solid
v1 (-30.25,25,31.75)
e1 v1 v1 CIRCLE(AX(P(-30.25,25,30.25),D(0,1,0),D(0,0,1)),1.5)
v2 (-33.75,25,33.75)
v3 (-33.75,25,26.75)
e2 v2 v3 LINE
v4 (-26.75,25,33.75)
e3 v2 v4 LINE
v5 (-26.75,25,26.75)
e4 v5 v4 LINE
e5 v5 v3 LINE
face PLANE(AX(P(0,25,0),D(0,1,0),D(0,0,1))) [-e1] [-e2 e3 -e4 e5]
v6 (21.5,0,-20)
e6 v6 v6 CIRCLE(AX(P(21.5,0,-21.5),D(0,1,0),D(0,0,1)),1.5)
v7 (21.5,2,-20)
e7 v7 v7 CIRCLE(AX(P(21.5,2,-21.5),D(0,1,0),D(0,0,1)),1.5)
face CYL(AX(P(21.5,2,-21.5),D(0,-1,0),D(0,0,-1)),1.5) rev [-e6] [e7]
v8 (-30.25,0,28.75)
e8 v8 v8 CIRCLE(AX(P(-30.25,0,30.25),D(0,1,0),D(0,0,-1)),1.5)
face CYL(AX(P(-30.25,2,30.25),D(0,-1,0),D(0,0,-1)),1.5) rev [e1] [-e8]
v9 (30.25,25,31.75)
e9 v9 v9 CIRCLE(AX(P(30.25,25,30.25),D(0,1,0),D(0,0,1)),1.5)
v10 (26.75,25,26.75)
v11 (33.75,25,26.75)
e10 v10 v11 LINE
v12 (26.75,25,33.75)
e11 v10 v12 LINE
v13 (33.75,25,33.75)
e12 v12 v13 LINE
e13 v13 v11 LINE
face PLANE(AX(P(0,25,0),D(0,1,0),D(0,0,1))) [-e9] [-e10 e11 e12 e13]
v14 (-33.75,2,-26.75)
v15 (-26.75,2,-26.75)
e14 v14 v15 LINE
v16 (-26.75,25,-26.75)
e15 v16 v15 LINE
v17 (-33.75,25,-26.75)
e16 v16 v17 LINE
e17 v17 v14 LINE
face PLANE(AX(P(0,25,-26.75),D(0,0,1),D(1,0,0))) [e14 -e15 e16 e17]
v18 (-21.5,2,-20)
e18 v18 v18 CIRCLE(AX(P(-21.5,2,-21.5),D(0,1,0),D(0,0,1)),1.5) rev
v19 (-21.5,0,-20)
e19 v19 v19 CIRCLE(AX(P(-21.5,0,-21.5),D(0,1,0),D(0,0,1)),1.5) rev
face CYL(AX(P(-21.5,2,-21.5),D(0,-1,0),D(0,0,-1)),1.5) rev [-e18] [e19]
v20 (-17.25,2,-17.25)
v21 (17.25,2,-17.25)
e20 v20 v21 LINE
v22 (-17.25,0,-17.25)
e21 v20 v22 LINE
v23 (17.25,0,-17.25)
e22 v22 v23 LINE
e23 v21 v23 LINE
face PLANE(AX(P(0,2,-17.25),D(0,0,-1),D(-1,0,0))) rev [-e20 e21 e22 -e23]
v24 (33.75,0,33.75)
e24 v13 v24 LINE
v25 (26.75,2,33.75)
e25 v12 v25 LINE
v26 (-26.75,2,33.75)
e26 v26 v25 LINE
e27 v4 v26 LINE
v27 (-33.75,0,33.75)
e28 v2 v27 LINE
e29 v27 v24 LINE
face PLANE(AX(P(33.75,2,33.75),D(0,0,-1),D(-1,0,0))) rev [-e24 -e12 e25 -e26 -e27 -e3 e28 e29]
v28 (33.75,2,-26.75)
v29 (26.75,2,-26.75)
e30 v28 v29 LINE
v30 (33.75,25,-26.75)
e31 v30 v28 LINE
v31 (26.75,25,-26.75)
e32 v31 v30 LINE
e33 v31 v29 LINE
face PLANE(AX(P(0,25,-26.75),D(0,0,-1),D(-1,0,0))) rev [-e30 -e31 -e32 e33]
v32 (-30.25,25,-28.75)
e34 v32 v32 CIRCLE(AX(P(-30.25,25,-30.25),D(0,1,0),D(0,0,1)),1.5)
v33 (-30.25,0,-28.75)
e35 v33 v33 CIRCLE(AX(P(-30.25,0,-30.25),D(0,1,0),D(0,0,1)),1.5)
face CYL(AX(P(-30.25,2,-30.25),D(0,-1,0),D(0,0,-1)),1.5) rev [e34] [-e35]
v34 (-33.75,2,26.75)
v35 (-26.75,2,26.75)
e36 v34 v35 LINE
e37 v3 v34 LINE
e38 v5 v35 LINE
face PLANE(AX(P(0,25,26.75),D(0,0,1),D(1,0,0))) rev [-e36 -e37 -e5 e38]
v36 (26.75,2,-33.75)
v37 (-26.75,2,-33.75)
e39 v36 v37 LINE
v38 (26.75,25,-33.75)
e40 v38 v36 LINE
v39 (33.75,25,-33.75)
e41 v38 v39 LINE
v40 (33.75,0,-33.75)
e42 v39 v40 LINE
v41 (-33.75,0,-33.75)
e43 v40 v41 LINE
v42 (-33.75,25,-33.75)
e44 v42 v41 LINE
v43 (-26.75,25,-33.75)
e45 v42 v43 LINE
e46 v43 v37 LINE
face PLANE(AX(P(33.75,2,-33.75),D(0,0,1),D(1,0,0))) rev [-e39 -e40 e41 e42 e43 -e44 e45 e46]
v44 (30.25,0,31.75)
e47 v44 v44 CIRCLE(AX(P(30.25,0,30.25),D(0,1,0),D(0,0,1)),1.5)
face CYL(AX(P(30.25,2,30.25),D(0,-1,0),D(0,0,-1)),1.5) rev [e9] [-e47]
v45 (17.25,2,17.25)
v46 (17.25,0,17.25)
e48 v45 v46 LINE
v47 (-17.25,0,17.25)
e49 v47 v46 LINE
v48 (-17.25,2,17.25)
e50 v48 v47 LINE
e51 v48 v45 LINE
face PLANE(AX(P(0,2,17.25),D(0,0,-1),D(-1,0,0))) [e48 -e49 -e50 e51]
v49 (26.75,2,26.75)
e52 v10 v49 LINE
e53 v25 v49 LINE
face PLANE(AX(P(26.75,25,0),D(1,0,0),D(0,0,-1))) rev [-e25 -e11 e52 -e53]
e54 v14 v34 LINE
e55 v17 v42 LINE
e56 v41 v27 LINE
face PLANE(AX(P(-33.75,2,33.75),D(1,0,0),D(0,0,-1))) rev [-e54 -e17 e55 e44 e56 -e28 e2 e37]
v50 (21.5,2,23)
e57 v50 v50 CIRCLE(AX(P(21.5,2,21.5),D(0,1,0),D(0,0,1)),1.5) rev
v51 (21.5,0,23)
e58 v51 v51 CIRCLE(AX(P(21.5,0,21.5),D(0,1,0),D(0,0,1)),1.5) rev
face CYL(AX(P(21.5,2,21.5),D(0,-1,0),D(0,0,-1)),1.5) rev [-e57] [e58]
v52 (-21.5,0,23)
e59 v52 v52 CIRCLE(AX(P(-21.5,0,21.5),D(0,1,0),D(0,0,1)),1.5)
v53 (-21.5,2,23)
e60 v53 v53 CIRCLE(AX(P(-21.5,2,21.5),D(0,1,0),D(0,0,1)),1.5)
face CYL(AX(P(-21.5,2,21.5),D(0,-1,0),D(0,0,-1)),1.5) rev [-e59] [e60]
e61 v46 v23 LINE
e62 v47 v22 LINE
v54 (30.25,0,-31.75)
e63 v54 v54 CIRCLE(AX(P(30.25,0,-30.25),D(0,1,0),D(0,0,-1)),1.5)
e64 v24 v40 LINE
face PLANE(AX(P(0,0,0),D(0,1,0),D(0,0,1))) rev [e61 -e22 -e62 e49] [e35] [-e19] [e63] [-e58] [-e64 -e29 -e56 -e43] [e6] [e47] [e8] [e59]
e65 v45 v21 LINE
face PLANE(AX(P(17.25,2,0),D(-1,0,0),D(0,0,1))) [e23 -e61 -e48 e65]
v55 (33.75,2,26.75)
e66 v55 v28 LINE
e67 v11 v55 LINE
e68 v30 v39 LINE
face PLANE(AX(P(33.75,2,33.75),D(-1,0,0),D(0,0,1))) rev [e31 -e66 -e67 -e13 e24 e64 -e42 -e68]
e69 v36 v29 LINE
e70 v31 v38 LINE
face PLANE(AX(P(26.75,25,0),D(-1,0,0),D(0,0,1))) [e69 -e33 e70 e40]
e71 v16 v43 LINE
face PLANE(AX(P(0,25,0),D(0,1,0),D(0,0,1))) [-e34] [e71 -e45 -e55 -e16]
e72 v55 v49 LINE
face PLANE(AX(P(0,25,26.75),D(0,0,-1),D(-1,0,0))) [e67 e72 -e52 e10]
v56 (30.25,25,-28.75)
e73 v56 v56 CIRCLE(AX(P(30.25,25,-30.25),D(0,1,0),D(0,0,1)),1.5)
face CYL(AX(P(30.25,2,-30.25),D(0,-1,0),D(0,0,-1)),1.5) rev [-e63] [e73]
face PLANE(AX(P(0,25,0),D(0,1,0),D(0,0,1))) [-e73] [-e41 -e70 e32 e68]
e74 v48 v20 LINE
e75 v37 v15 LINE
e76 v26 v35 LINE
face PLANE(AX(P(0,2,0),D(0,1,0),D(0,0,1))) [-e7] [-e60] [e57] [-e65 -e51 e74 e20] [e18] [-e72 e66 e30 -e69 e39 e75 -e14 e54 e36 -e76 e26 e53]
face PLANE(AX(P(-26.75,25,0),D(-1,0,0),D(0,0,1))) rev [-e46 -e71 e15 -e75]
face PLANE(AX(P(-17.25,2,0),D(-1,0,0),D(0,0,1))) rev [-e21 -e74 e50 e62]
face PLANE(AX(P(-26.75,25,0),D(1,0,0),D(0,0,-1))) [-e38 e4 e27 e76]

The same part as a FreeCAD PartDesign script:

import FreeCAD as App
import Part
import Sketcher

doc = App.newDocument("Part")
params = doc.addObject("Spreadsheet::Sheet", "Params")
for row, (alias, value) in enumerate([
    ("sketch1_diameter", "3 mm"),
    ("sketch1_width", "55.5 mm"),
    ("sketch1_width2", "34.5 mm"),
    ("pad1_length", "2 mm"),
    ("sketch2_diameter", "3 mm"),
    ("sketch2_width", "67.5 mm"),
    ("sketch2_width2", "55.5 mm"),
    ("pad2_length", "2 mm"),
    ("sketch3_diameter", "3 mm"),
    ("sketch3_width", "7 mm"),
    ("pad3_length", "25 mm"),
], start=1):
    params.set(f"A{row}", alias)
    params.set(f"B{row}", "=" + value)
    params.setAlias(f"B{row}", alias)

body = doc.addObject("PartDesign::Body", "Body")

sketch1 = body.newObject("Sketcher::SketchObject", "Sketch")
sketch1.AttachmentSupport = (doc.getObject("XZ_Plane"), [""])
sketch1.MapMode = "FlatFace"
sketch1.addGeometry(Part.LineSegment(App.Vector(-27.8, -27.8, 0), App.Vector(-27.8, 27.8, 0)), False)
sketch1.addGeometry(Part.LineSegment(App.Vector(-27.8, 27.8, 0), App.Vector(27.8, 27.8, 0)), False)
sketch1.addGeometry(Part.LineSegment(App.Vector(27.8, 27.8, 0), App.Vector(27.8, -27.8, 0)), False)
sketch1.addGeometry(Part.LineSegment(App.Vector(27.8, -27.8, 0), App.Vector(-27.8, -27.8, 0)), False)
sketch1.addGeometry(Part.Circle(App.Vector(-21.5, 21.5, 0), App.Vector(0, 0, 1), 1.5), False)
sketch1.addGeometry(Part.Circle(App.Vector(21.5, 21.5, 0), App.Vector(0, 0, 1), 1.5), False)
sketch1.addGeometry(Part.Circle(App.Vector(-21.5, -21.5, 0), App.Vector(0, 0, 1), 1.5), False)
sketch1.addGeometry(Part.LineSegment(App.Vector(17.2, 17.2, 0), App.Vector(-17.2, 17.2, 0)), False)
sketch1.addGeometry(Part.LineSegment(App.Vector(-17.2, 17.2, 0), App.Vector(-17.2, -17.2, 0)), False)
sketch1.addGeometry(Part.LineSegment(App.Vector(-17.2, -17.2, 0), App.Vector(17.2, -17.2, 0)), False)
sketch1.addGeometry(Part.LineSegment(App.Vector(17.2, -17.2, 0), App.Vector(17.2, 17.2, 0)), False)
sketch1.addGeometry(Part.Circle(App.Vector(21.5, -21.5, 0), App.Vector(0, 0, 1), 1.5), False)
sketch1.addConstraint(Sketcher.Constraint("Coincident", 0, 2, 1, 1))
sketch1.addConstraint(Sketcher.Constraint("Coincident", 1, 2, 2, 1))
sketch1.addConstraint(Sketcher.Constraint("Coincident", 2, 2, 3, 1))
sketch1.addConstraint(Sketcher.Constraint("Coincident", 3, 2, 0, 1))
sketch1.addConstraint(Sketcher.Constraint("Coincident", 7, 2, 8, 1))
sketch1.addConstraint(Sketcher.Constraint("Coincident", 8, 2, 9, 1))
sketch1.addConstraint(Sketcher.Constraint("Coincident", 9, 2, 10, 1))
sketch1.addConstraint(Sketcher.Constraint("Coincident", 10, 2, 7, 1))
sketch1.addConstraint(Sketcher.Constraint("Vertical", 0))
sketch1.addConstraint(Sketcher.Constraint("Horizontal", 1))
sketch1.addConstraint(Sketcher.Constraint("Vertical", 2))
sketch1.addConstraint(Sketcher.Constraint("Horizontal", 3))
sketch1.addConstraint(Sketcher.Constraint("Horizontal", 7))
sketch1.addConstraint(Sketcher.Constraint("Vertical", 8))
sketch1.addConstraint(Sketcher.Constraint("Horizontal", 9))
sketch1.addConstraint(Sketcher.Constraint("Vertical", 10))
sketch1.addConstraint(Sketcher.Constraint("Equal", 4, 5))
sketch1.addConstraint(Sketcher.Constraint("Equal", 5, 6))
sketch1.addConstraint(Sketcher.Constraint("Equal", 6, 11))
sketch1.addConstraint(Sketcher.Constraint("Symmetric", 5, 3, 6, 3, -1, 1))
sketch1.addConstraint(Sketcher.Constraint("Symmetric", 4, 3, 11, 3, -1, 1))
sketch1.addConstraint(Sketcher.Constraint("Symmetric", 0, 2, 2, 2, -1, 1))
sketch1.addConstraint(Sketcher.Constraint("Symmetric", 7, 2, 9, 2, -1, 1))
sketch1.addConstraint(Sketcher.Constraint("Symmetric", 4, 3, 5, 3, -2))
sketch1.addConstraint(Sketcher.Constraint("Equal", 3, 0))
sketch1.addConstraint(Sketcher.Constraint("Equal", 9, 8))
sketch1.addConstraint(Sketcher.Constraint("Diameter", 4, 3.0))
sketch1.addConstraint(Sketcher.Constraint("DistanceX", 1, 1, 1, 2, 55.5))
sketch1.addConstraint(Sketcher.Constraint("DistanceX", 7, 2, 7, 1, 34.5))
sketch1.addConstraint(Sketcher.Constraint("DistanceX", 4, 3, 5, 3, 43.0))
sketch1.addConstraint(Sketcher.Constraint("DistanceY", 6, 3, 4, 3, 43.0))
sketch1.setExpression("Constraints[26]", "Params.sketch1_diameter")
sketch1.setExpression("Constraints[27]", "Params.sketch1_width")
sketch1.setExpression("Constraints[28]", "Params.sketch1_width2")
pad1 = body.newObject("PartDesign::Pad", "Pad")
pad1.Profile = sketch1
pad1.setExpression("Length", "Params.pad1_length")
pad1.Reversed = True

sketch2 = body.newObject("Sketcher::SketchObject", "Sketch001")
sketch2.AttachmentSupport = (doc.getObject("XZ_Plane"), [""])
sketch2.MapMode = "FlatFace"
sketch2.addGeometry(Part.LineSegment(App.Vector(-33.8, -33.8, 0), App.Vector(-33.8, 33.8, 0)), False)
sketch2.addGeometry(Part.LineSegment(App.Vector(-33.8, 33.8, 0), App.Vector(33.8, 33.8, 0)), False)
sketch2.addGeometry(Part.LineSegment(App.Vector(33.8, 33.8, 0), App.Vector(33.8, -33.8, 0)), False)
sketch2.addGeometry(Part.LineSegment(App.Vector(33.8, -33.8, 0), App.Vector(-33.8, -33.8, 0)), False)
sketch2.addGeometry(Part.Circle(App.Vector(-30.2, 30.2, 0), App.Vector(0, 0, 1), 1.5), False)
sketch2.addGeometry(Part.Circle(App.Vector(30.2, 30.2, 0), App.Vector(0, 0, 1), 1.5), False)
sketch2.addGeometry(Part.Circle(App.Vector(-30.2, -30.2, 0), App.Vector(0, 0, 1), 1.5), False)
sketch2.addGeometry(Part.LineSegment(App.Vector(27.8, 27.8, 0), App.Vector(-27.8, 27.8, 0)), False)
sketch2.addGeometry(Part.LineSegment(App.Vector(-27.8, 27.8, 0), App.Vector(-27.8, -27.8, 0)), False)
sketch2.addGeometry(Part.LineSegment(App.Vector(-27.8, -27.8, 0), App.Vector(27.8, -27.8, 0)), False)
sketch2.addGeometry(Part.LineSegment(App.Vector(27.8, -27.8, 0), App.Vector(27.8, 27.8, 0)), False)
sketch2.addGeometry(Part.Circle(App.Vector(30.2, -30.2, 0), App.Vector(0, 0, 1), 1.5), False)
sketch2.addConstraint(Sketcher.Constraint("Coincident", 0, 2, 1, 1))
sketch2.addConstraint(Sketcher.Constraint("Coincident", 1, 2, 2, 1))
sketch2.addConstraint(Sketcher.Constraint("Coincident", 2, 2, 3, 1))
sketch2.addConstraint(Sketcher.Constraint("Coincident", 3, 2, 0, 1))
sketch2.addConstraint(Sketcher.Constraint("Coincident", 7, 2, 8, 1))
sketch2.addConstraint(Sketcher.Constraint("Coincident", 8, 2, 9, 1))
sketch2.addConstraint(Sketcher.Constraint("Coincident", 9, 2, 10, 1))
sketch2.addConstraint(Sketcher.Constraint("Coincident", 10, 2, 7, 1))
sketch2.addConstraint(Sketcher.Constraint("Vertical", 0))
sketch2.addConstraint(Sketcher.Constraint("Horizontal", 1))
sketch2.addConstraint(Sketcher.Constraint("Vertical", 2))
sketch2.addConstraint(Sketcher.Constraint("Horizontal", 3))
sketch2.addConstraint(Sketcher.Constraint("Horizontal", 7))
sketch2.addConstraint(Sketcher.Constraint("Vertical", 8))
sketch2.addConstraint(Sketcher.Constraint("Horizontal", 9))
sketch2.addConstraint(Sketcher.Constraint("Vertical", 10))
sketch2.addConstraint(Sketcher.Constraint("Equal", 4, 5))
sketch2.addConstraint(Sketcher.Constraint("Equal", 5, 6))
sketch2.addConstraint(Sketcher.Constraint("Equal", 6, 11))
sketch2.addConstraint(Sketcher.Constraint("Symmetric", 5, 3, 6, 3, -1, 1))
sketch2.addConstraint(Sketcher.Constraint("Symmetric", 4, 3, 11, 3, -1, 1))
sketch2.addConstraint(Sketcher.Constraint("Symmetric", 0, 2, 2, 2, -1, 1))
sketch2.addConstraint(Sketcher.Constraint("Symmetric", 7, 2, 9, 2, -1, 1))
sketch2.addConstraint(Sketcher.Constraint("Symmetric", 4, 3, 5, 3, -2))
sketch2.addConstraint(Sketcher.Constraint("Equal", 3, 0))
sketch2.addConstraint(Sketcher.Constraint("Equal", 9, 8))
sketch2.addConstraint(Sketcher.Constraint("Diameter", 4, 3.0))
sketch2.addConstraint(Sketcher.Constraint("DistanceX", 1, 1, 1, 2, 67.5))
sketch2.addConstraint(Sketcher.Constraint("DistanceX", 7, 2, 7, 1, 55.5))
sketch2.addConstraint(Sketcher.Constraint("DistanceX", 0, 2, 5, 3, 64.0))
sketch2.addConstraint(Sketcher.Constraint("DistanceY", 6, 3, 0, 2, 64.0))
sketch2.setExpression("Constraints[26]", "Params.sketch2_diameter")
sketch2.setExpression("Constraints[27]", "Params.sketch2_width")
sketch2.setExpression("Constraints[28]", "Params.sketch2_width2")
pad2 = body.newObject("PartDesign::Pad", "Pad001")
pad2.Profile = sketch2
pad2.setExpression("Length", "Params.pad2_length")
pad2.Reversed = True

sketch3 = body.newObject("Sketcher::SketchObject", "Sketch002")
sketch3.AttachmentSupport = (doc.getObject("XZ_Plane"), [""])
sketch3.MapMode = "FlatFace"
sketch3.addGeometry(Part.LineSegment(App.Vector(-33.8, 26.8, 0), App.Vector(-33.8, 33.8, 0)), False)
sketch3.addGeometry(Part.LineSegment(App.Vector(-33.8, 33.8, 0), App.Vector(-26.8, 33.8, 0)), False)
sketch3.addGeometry(Part.LineSegment(App.Vector(-26.8, 33.8, 0), App.Vector(-26.8, 26.8, 0)), False)
sketch3.addGeometry(Part.LineSegment(App.Vector(-26.8, 26.8, 0), App.Vector(-33.8, 26.8, 0)), False)
sketch3.addGeometry(Part.Circle(App.Vector(-30.2, 30.2, 0), App.Vector(0, 0, 1), 1.5), False)
sketch3.addGeometry(Part.LineSegment(App.Vector(26.8, 26.8, 0), App.Vector(26.8, 33.8, 0)), False)
sketch3.addGeometry(Part.LineSegment(App.Vector(26.8, 33.8, 0), App.Vector(33.8, 33.8, 0)), False)
sketch3.addGeometry(Part.LineSegment(App.Vector(33.8, 33.8, 0), App.Vector(33.8, 26.8, 0)), False)
sketch3.addGeometry(Part.LineSegment(App.Vector(33.8, 26.8, 0), App.Vector(26.8, 26.8, 0)), False)
sketch3.addGeometry(Part.Circle(App.Vector(30.2, 30.2, 0), App.Vector(0, 0, 1), 1.5), False)
sketch3.addGeometry(Part.LineSegment(App.Vector(-33.8, -33.8, 0), App.Vector(-33.8, -26.8, 0)), False)
sketch3.addGeometry(Part.LineSegment(App.Vector(-33.8, -26.8, 0), App.Vector(-26.8, -26.8, 0)), False)
sketch3.addGeometry(Part.LineSegment(App.Vector(-26.8, -26.8, 0), App.Vector(-26.8, -33.8, 0)), False)
sketch3.addGeometry(Part.LineSegment(App.Vector(-26.8, -33.8, 0), App.Vector(-33.8, -33.8, 0)), False)
sketch3.addGeometry(Part.Circle(App.Vector(-30.2, -30.2, 0), App.Vector(0, 0, 1), 1.5), False)
sketch3.addGeometry(Part.LineSegment(App.Vector(26.8, -33.8, 0), App.Vector(26.8, -26.8, 0)), False)
sketch3.addGeometry(Part.LineSegment(App.Vector(26.8, -26.8, 0), App.Vector(33.8, -26.8, 0)), False)
sketch3.addGeometry(Part.LineSegment(App.Vector(33.8, -26.8, 0), App.Vector(33.8, -33.8, 0)), False)
sketch3.addGeometry(Part.LineSegment(App.Vector(33.8, -33.8, 0), App.Vector(26.8, -33.8, 0)), False)
sketch3.addGeometry(Part.Circle(App.Vector(30.2, -30.2, 0), App.Vector(0, 0, 1), 1.5), False)
sketch3.addConstraint(Sketcher.Constraint("Coincident", 0, 2, 1, 1))
sketch3.addConstraint(Sketcher.Constraint("Coincident", 1, 2, 2, 1))
sketch3.addConstraint(Sketcher.Constraint("Coincident", 2, 2, 3, 1))
sketch3.addConstraint(Sketcher.Constraint("Coincident", 3, 2, 0, 1))
sketch3.addConstraint(Sketcher.Constraint("Coincident", 5, 2, 6, 1))
sketch3.addConstraint(Sketcher.Constraint("Coincident", 6, 2, 7, 1))
sketch3.addConstraint(Sketcher.Constraint("Coincident", 7, 2, 8, 1))
sketch3.addConstraint(Sketcher.Constraint("Coincident", 8, 2, 5, 1))
sketch3.addConstraint(Sketcher.Constraint("Coincident", 10, 2, 11, 1))
sketch3.addConstraint(Sketcher.Constraint("Coincident", 11, 2, 12, 1))
sketch3.addConstraint(Sketcher.Constraint("Coincident", 12, 2, 13, 1))
sketch3.addConstraint(Sketcher.Constraint("Coincident", 13, 2, 10, 1))
sketch3.addConstraint(Sketcher.Constraint("Coincident", 15, 2, 16, 1))
sketch3.addConstraint(Sketcher.Constraint("Coincident", 16, 2, 17, 1))
sketch3.addConstraint(Sketcher.Constraint("Coincident", 17, 2, 18, 1))
sketch3.addConstraint(Sketcher.Constraint("Coincident", 18, 2, 15, 1))
sketch3.addConstraint(Sketcher.Constraint("Vertical", 0))
sketch3.addConstraint(Sketcher.Constraint("Horizontal", 1))
sketch3.addConstraint(Sketcher.Constraint("Vertical", 2))
sketch3.addConstraint(Sketcher.Constraint("Horizontal", 3))
sketch3.addConstraint(Sketcher.Constraint("Vertical", 5))
sketch3.addConstraint(Sketcher.Constraint("Horizontal", 6))
sketch3.addConstraint(Sketcher.Constraint("Vertical", 7))
sketch3.addConstraint(Sketcher.Constraint("Horizontal", 8))
sketch3.addConstraint(Sketcher.Constraint("Vertical", 10))
sketch3.addConstraint(Sketcher.Constraint("Horizontal", 11))
sketch3.addConstraint(Sketcher.Constraint("Vertical", 12))
sketch3.addConstraint(Sketcher.Constraint("Horizontal", 13))
sketch3.addConstraint(Sketcher.Constraint("Vertical", 15))
sketch3.addConstraint(Sketcher.Constraint("Horizontal", 16))
sketch3.addConstraint(Sketcher.Constraint("Vertical", 17))
sketch3.addConstraint(Sketcher.Constraint("Horizontal", 18))
sketch3.addConstraint(Sketcher.Constraint("Equal", 4, 9))
sketch3.addConstraint(Sketcher.Constraint("Equal", 9, 14))
sketch3.addConstraint(Sketcher.Constraint("Equal", 14, 19))
sketch3.addConstraint(Sketcher.Constraint("Symmetric", 9, 3, 14, 3, -1, 1))
sketch3.addConstraint(Sketcher.Constraint("Symmetric", 4, 3, 19, 3, -1, 1))
sketch3.addConstraint(Sketcher.Constraint("Symmetric", 7, 2, 10, 2, -1, 1))
sketch3.addConstraint(Sketcher.Constraint("Symmetric", 5, 2, 12, 2, -1, 1))
sketch3.addConstraint(Sketcher.Constraint("Symmetric", 2, 2, 15, 2, -1, 1))
sketch3.addConstraint(Sketcher.Constraint("Symmetric", 0, 2, 17, 2, -1, 1))
sketch3.addConstraint(Sketcher.Constraint("Symmetric", 4, 3, 9, 3, -2))
sketch3.addConstraint(Sketcher.Constraint("Symmetric", 1, 2, 5, 2, -2))
sketch3.addConstraint(Sketcher.Constraint("Symmetric", 3, 2, 7, 2, -2))
sketch3.addConstraint(Sketcher.Constraint("Equal", 18, 0))
sketch3.addConstraint(Sketcher.Constraint("Diameter", 4, 3.0))
sketch3.addConstraint(Sketcher.Constraint("DistanceX", 1, 1, 1, 2, 7.0))
sketch3.addConstraint(Sketcher.Constraint("DistanceX", 0, 2, 9, 3, 64.0))
sketch3.addConstraint(Sketcher.Constraint("DistanceY", 14, 3, 0, 2, 64.0))
sketch3.addConstraint(Sketcher.Constraint("DistanceX", 4, 3, 9, 3, 60.5))
sketch3.addConstraint(Sketcher.Constraint("DistanceY", 14, 3, 4, 3, 60.5))
sketch3.setExpression("Constraints[45]", "Params.sketch3_diameter")
sketch3.setExpression("Constraints[46]", "Params.sketch3_width")
pad3 = body.newObject("PartDesign::Pad", "Pad002")
pad3.Profile = sketch3
pad3.setExpression("Length", "Params.pad3_length")
pad3.Reversed = True

doc.recompute()
